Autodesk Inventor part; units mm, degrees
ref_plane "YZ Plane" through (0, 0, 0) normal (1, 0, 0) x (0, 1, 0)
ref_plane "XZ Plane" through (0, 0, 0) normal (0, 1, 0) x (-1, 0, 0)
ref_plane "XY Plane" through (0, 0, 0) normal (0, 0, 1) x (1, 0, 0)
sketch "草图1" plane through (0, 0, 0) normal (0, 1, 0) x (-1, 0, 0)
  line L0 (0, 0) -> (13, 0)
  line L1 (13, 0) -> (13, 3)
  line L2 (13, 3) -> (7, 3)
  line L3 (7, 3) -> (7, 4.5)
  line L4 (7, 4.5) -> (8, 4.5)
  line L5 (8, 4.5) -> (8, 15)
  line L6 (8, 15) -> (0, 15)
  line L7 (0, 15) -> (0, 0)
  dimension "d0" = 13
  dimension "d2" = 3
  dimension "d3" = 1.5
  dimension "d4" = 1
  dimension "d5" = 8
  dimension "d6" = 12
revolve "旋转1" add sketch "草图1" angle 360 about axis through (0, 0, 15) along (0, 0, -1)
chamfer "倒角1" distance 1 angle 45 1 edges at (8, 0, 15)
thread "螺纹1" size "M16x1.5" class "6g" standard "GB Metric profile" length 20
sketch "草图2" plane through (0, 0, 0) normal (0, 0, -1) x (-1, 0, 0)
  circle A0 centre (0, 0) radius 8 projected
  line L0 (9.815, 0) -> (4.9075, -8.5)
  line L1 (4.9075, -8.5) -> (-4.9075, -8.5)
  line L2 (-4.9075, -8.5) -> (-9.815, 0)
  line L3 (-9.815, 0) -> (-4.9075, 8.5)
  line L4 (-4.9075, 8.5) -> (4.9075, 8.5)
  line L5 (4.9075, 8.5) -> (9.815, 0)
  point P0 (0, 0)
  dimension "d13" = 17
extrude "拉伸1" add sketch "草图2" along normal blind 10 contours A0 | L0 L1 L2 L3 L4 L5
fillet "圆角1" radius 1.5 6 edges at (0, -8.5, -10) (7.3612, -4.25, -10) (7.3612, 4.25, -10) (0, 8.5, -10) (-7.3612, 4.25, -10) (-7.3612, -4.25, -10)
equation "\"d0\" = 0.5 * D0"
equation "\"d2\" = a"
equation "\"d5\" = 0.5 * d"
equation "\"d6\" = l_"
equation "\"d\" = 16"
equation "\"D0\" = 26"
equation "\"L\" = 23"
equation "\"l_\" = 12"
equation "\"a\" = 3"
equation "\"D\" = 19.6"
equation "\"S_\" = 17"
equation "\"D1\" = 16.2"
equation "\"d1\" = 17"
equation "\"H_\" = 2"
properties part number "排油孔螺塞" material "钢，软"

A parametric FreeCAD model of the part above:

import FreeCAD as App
import Part
import Sketcher

V = App.Vector
Q = App.Units.Quantity


def edges_at(feature, points):
    """Names of the edges that pass closest to the given points."""
    edges = feature.Shape.Edges
    near = lambda p: min(range(len(edges)), key=lambda i: edges[i].distToShape(Part.Vertex(*p))[0])
    return sorted({f"Edge{near(p) + 1}" for p in points})


def add_polygon(sketch, points):
    """Adds a closed chain of lines whose ends are joined by coincident constraints."""
    first, n = sketch.GeometryCount, len(points)
    for a, b in zip(points, points[1:] + points[:1]):
        sketch.addGeometry(Part.LineSegment(App.Vector(*a, 0), App.Vector(*b, 0)), False)
    for i in range(n):
        sketch.addConstraint(Sketcher.Constraint("Coincident", first + i, 2, first + (i + 1) % n, 1))

doc = App.newDocument("Part")
body = doc.addObject("PartDesign::Body", "Body")

# Sketch on XZ plane
sketch1 = body.newObject("Sketcher::SketchObject", "Sketch")
sketch1.AttachmentSupport = (doc.getObject("XZ_Plane"), [""])
sketch1.MapMode = "FlatFace"
add_polygon(sketch1, [(0, 15), (0, 0), (-13, 0), (-13, 3), (-7, 3), (-7, 4.5), (-8, 4.5), (-8, 15)])  # lines 0-7
sketch1.addConstraint(Sketcher.Constraint("Vertical", 0))
sketch1.addConstraint(Sketcher.Constraint("Horizontal", 1))
sketch1.addConstraint(Sketcher.Constraint("Vertical", 2))
sketch1.addConstraint(Sketcher.Constraint("Horizontal", 3))
sketch1.addConstraint(Sketcher.Constraint("Vertical", 4))
sketch1.addConstraint(Sketcher.Constraint("Horizontal", 5))
sketch1.addConstraint(Sketcher.Constraint("Vertical", 6))
sketch1.addConstraint(Sketcher.Constraint("Horizontal", 7))
sketch1.addConstraint(Sketcher.Constraint("Coincident", 0, 2, -1, 1))
sketch1.addConstraint(Sketcher.Constraint("DistanceX", 1, 2, 1, 1, 13.0))
sketch1.addConstraint(Sketcher.Constraint("DistanceX", 5, 2, 5, 1, 1.0))
sketch1.addConstraint(Sketcher.Constraint("DistanceX", 7, 1, 7, 2, 8.0))
sketch1.addConstraint(Sketcher.Constraint("DistanceY", 2, 1, 2, 2, 3.0))
sketch1.addConstraint(Sketcher.Constraint("DistanceY", 4, 1, 4, 2, 1.5))
sketch1.addConstraint(Sketcher.Constraint("DistanceY", 3, 2, 6, 2, 12.0))
revolution = body.newObject("PartDesign::Revolution", "Revolution")
revolution.Profile = sketch1
revolution.ReferenceAxis = (sketch1, ["V_Axis"])
revolution.Angle = 360
doc.recompute()

chamfer = body.newObject("PartDesign::Chamfer", "Chamfer")
chamfer.Base = (revolution, edges_at(revolution, [(8, 0, 15)]))
chamfer.Size = 1

# Sketch on XY plane
sketch2 = body.newObject("Sketcher::SketchObject", "Sketch001")
sketch2.AttachmentSupport = (doc.getObject("XY_Plane"), [""])
sketch2.MapMode = "FlatFace"
add_polygon(sketch2, [(-5, -8), (-10, 0), (-5, 8), (5, 8), (10, 0), (5, -8)])  # lines 0-5
sketch2.addConstraint(Sketcher.Constraint("Horizontal", 2))
sketch2.addConstraint(Sketcher.Constraint("Horizontal", 5))
sketch2.addConstraint(Sketcher.Constraint("Symmetric", 0, 2, 3, 2, -1, 1))
sketch2.addConstraint(Sketcher.Constraint("Symmetric", 1, 2, 4, 2, -1, 1))
sketch2.addConstraint(Sketcher.Constraint("PointOnObject", 0, 2, -1))
sketch2.addConstraint(Sketcher.Constraint("Parallel", 0, 3))
sketch2.addConstraint(Sketcher.Constraint("Vertical", 2, 2, 4, 2))
sketch2.addConstraint(Sketcher.Constraint("DistanceY", 4, 2, 2, 2, 17.0))
sketch2.addConstraint(Sketcher.Constraint("Angle", 0, Q("120 deg")))
sketch2.addConstraint(Sketcher.Constraint("DistanceX", 2, 1, 2, 2, 9.815))
pad1 = body.newObject("PartDesign::Pad", "Pad")
pad1.Profile = sketch2
pad1.Length = 10
pad1.Reversed = True
doc.recompute()

fillet = body.newObject("PartDesign::Fillet", "Fillet")
fillet.Base = (pad1, edges_at(pad1, [
    (0, -8.5, -10),
    (7.361, -4.25, -10),
    (7.361, 4.25, -10),
    (0, 8.5, -10),
    (-7.361, 4.25, -10),
    (-7.361, -4.25, -10),
]))
fillet.Radius = 1.5

doc.recompute()
